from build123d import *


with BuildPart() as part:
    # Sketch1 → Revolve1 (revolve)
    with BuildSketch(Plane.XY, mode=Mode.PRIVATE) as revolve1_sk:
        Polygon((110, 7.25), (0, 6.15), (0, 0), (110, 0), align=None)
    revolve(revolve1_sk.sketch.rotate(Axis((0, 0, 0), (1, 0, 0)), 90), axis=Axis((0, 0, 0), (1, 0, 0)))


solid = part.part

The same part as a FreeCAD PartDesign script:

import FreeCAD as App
import Part
import Sketcher

V = App.Vector


def add_polygon(sketch, points):
    """Adds a closed chain of lines whose ends are joined by coincident constraints."""
    first, n = sketch.GeometryCount, len(points)
    for a, b in zip(points, points[1:] + points[:1]):
        sketch.addGeometry(Part.LineSegment(App.Vector(*a, 0), App.Vector(*b, 0)), False)
    for i in range(n):
        sketch.addConstraint(Sketcher.Constraint("Coincident", first + i, 2, first + (i + 1) % n, 1))

doc = App.newDocument("Part")
body = doc.addObject("PartDesign::Body", "Body")

sketch1 = body.newObject("Sketcher::SketchObject", "Sketch")
sketch1.AttachmentSupport = (doc.getObject("XY_Plane"), [""])
sketch1.MapMode = "FlatFace"
add_polygon(sketch1, [(110, 7), (0, 6), (0, 0), (110, 0)])
sketch1.addConstraint([
    Sketcher.Constraint("Vertical", 1),
    Sketcher.Constraint("Horizontal", 2),
    Sketcher.Constraint("Vertical", 3),
    Sketcher.Constraint("Coincident", 1, 2, -1, 1),
    Sketcher.Constraint("DistanceX", 2, 1, 2, 2, 110.0),
    Sketcher.Constraint("DistanceY", 1, 2, 1, 1, 6.15),
    Sketcher.Constraint("DistanceY", 3, 1, 3, 2, 7.25),
])
revolution = body.newObject("PartDesign::Revolution", "Revolution")
revolution.Profile = sketch1
revolution.ReferenceAxis = (sketch1, ["H_Axis"])
revolution.Angle = 360

doc.recompute()
